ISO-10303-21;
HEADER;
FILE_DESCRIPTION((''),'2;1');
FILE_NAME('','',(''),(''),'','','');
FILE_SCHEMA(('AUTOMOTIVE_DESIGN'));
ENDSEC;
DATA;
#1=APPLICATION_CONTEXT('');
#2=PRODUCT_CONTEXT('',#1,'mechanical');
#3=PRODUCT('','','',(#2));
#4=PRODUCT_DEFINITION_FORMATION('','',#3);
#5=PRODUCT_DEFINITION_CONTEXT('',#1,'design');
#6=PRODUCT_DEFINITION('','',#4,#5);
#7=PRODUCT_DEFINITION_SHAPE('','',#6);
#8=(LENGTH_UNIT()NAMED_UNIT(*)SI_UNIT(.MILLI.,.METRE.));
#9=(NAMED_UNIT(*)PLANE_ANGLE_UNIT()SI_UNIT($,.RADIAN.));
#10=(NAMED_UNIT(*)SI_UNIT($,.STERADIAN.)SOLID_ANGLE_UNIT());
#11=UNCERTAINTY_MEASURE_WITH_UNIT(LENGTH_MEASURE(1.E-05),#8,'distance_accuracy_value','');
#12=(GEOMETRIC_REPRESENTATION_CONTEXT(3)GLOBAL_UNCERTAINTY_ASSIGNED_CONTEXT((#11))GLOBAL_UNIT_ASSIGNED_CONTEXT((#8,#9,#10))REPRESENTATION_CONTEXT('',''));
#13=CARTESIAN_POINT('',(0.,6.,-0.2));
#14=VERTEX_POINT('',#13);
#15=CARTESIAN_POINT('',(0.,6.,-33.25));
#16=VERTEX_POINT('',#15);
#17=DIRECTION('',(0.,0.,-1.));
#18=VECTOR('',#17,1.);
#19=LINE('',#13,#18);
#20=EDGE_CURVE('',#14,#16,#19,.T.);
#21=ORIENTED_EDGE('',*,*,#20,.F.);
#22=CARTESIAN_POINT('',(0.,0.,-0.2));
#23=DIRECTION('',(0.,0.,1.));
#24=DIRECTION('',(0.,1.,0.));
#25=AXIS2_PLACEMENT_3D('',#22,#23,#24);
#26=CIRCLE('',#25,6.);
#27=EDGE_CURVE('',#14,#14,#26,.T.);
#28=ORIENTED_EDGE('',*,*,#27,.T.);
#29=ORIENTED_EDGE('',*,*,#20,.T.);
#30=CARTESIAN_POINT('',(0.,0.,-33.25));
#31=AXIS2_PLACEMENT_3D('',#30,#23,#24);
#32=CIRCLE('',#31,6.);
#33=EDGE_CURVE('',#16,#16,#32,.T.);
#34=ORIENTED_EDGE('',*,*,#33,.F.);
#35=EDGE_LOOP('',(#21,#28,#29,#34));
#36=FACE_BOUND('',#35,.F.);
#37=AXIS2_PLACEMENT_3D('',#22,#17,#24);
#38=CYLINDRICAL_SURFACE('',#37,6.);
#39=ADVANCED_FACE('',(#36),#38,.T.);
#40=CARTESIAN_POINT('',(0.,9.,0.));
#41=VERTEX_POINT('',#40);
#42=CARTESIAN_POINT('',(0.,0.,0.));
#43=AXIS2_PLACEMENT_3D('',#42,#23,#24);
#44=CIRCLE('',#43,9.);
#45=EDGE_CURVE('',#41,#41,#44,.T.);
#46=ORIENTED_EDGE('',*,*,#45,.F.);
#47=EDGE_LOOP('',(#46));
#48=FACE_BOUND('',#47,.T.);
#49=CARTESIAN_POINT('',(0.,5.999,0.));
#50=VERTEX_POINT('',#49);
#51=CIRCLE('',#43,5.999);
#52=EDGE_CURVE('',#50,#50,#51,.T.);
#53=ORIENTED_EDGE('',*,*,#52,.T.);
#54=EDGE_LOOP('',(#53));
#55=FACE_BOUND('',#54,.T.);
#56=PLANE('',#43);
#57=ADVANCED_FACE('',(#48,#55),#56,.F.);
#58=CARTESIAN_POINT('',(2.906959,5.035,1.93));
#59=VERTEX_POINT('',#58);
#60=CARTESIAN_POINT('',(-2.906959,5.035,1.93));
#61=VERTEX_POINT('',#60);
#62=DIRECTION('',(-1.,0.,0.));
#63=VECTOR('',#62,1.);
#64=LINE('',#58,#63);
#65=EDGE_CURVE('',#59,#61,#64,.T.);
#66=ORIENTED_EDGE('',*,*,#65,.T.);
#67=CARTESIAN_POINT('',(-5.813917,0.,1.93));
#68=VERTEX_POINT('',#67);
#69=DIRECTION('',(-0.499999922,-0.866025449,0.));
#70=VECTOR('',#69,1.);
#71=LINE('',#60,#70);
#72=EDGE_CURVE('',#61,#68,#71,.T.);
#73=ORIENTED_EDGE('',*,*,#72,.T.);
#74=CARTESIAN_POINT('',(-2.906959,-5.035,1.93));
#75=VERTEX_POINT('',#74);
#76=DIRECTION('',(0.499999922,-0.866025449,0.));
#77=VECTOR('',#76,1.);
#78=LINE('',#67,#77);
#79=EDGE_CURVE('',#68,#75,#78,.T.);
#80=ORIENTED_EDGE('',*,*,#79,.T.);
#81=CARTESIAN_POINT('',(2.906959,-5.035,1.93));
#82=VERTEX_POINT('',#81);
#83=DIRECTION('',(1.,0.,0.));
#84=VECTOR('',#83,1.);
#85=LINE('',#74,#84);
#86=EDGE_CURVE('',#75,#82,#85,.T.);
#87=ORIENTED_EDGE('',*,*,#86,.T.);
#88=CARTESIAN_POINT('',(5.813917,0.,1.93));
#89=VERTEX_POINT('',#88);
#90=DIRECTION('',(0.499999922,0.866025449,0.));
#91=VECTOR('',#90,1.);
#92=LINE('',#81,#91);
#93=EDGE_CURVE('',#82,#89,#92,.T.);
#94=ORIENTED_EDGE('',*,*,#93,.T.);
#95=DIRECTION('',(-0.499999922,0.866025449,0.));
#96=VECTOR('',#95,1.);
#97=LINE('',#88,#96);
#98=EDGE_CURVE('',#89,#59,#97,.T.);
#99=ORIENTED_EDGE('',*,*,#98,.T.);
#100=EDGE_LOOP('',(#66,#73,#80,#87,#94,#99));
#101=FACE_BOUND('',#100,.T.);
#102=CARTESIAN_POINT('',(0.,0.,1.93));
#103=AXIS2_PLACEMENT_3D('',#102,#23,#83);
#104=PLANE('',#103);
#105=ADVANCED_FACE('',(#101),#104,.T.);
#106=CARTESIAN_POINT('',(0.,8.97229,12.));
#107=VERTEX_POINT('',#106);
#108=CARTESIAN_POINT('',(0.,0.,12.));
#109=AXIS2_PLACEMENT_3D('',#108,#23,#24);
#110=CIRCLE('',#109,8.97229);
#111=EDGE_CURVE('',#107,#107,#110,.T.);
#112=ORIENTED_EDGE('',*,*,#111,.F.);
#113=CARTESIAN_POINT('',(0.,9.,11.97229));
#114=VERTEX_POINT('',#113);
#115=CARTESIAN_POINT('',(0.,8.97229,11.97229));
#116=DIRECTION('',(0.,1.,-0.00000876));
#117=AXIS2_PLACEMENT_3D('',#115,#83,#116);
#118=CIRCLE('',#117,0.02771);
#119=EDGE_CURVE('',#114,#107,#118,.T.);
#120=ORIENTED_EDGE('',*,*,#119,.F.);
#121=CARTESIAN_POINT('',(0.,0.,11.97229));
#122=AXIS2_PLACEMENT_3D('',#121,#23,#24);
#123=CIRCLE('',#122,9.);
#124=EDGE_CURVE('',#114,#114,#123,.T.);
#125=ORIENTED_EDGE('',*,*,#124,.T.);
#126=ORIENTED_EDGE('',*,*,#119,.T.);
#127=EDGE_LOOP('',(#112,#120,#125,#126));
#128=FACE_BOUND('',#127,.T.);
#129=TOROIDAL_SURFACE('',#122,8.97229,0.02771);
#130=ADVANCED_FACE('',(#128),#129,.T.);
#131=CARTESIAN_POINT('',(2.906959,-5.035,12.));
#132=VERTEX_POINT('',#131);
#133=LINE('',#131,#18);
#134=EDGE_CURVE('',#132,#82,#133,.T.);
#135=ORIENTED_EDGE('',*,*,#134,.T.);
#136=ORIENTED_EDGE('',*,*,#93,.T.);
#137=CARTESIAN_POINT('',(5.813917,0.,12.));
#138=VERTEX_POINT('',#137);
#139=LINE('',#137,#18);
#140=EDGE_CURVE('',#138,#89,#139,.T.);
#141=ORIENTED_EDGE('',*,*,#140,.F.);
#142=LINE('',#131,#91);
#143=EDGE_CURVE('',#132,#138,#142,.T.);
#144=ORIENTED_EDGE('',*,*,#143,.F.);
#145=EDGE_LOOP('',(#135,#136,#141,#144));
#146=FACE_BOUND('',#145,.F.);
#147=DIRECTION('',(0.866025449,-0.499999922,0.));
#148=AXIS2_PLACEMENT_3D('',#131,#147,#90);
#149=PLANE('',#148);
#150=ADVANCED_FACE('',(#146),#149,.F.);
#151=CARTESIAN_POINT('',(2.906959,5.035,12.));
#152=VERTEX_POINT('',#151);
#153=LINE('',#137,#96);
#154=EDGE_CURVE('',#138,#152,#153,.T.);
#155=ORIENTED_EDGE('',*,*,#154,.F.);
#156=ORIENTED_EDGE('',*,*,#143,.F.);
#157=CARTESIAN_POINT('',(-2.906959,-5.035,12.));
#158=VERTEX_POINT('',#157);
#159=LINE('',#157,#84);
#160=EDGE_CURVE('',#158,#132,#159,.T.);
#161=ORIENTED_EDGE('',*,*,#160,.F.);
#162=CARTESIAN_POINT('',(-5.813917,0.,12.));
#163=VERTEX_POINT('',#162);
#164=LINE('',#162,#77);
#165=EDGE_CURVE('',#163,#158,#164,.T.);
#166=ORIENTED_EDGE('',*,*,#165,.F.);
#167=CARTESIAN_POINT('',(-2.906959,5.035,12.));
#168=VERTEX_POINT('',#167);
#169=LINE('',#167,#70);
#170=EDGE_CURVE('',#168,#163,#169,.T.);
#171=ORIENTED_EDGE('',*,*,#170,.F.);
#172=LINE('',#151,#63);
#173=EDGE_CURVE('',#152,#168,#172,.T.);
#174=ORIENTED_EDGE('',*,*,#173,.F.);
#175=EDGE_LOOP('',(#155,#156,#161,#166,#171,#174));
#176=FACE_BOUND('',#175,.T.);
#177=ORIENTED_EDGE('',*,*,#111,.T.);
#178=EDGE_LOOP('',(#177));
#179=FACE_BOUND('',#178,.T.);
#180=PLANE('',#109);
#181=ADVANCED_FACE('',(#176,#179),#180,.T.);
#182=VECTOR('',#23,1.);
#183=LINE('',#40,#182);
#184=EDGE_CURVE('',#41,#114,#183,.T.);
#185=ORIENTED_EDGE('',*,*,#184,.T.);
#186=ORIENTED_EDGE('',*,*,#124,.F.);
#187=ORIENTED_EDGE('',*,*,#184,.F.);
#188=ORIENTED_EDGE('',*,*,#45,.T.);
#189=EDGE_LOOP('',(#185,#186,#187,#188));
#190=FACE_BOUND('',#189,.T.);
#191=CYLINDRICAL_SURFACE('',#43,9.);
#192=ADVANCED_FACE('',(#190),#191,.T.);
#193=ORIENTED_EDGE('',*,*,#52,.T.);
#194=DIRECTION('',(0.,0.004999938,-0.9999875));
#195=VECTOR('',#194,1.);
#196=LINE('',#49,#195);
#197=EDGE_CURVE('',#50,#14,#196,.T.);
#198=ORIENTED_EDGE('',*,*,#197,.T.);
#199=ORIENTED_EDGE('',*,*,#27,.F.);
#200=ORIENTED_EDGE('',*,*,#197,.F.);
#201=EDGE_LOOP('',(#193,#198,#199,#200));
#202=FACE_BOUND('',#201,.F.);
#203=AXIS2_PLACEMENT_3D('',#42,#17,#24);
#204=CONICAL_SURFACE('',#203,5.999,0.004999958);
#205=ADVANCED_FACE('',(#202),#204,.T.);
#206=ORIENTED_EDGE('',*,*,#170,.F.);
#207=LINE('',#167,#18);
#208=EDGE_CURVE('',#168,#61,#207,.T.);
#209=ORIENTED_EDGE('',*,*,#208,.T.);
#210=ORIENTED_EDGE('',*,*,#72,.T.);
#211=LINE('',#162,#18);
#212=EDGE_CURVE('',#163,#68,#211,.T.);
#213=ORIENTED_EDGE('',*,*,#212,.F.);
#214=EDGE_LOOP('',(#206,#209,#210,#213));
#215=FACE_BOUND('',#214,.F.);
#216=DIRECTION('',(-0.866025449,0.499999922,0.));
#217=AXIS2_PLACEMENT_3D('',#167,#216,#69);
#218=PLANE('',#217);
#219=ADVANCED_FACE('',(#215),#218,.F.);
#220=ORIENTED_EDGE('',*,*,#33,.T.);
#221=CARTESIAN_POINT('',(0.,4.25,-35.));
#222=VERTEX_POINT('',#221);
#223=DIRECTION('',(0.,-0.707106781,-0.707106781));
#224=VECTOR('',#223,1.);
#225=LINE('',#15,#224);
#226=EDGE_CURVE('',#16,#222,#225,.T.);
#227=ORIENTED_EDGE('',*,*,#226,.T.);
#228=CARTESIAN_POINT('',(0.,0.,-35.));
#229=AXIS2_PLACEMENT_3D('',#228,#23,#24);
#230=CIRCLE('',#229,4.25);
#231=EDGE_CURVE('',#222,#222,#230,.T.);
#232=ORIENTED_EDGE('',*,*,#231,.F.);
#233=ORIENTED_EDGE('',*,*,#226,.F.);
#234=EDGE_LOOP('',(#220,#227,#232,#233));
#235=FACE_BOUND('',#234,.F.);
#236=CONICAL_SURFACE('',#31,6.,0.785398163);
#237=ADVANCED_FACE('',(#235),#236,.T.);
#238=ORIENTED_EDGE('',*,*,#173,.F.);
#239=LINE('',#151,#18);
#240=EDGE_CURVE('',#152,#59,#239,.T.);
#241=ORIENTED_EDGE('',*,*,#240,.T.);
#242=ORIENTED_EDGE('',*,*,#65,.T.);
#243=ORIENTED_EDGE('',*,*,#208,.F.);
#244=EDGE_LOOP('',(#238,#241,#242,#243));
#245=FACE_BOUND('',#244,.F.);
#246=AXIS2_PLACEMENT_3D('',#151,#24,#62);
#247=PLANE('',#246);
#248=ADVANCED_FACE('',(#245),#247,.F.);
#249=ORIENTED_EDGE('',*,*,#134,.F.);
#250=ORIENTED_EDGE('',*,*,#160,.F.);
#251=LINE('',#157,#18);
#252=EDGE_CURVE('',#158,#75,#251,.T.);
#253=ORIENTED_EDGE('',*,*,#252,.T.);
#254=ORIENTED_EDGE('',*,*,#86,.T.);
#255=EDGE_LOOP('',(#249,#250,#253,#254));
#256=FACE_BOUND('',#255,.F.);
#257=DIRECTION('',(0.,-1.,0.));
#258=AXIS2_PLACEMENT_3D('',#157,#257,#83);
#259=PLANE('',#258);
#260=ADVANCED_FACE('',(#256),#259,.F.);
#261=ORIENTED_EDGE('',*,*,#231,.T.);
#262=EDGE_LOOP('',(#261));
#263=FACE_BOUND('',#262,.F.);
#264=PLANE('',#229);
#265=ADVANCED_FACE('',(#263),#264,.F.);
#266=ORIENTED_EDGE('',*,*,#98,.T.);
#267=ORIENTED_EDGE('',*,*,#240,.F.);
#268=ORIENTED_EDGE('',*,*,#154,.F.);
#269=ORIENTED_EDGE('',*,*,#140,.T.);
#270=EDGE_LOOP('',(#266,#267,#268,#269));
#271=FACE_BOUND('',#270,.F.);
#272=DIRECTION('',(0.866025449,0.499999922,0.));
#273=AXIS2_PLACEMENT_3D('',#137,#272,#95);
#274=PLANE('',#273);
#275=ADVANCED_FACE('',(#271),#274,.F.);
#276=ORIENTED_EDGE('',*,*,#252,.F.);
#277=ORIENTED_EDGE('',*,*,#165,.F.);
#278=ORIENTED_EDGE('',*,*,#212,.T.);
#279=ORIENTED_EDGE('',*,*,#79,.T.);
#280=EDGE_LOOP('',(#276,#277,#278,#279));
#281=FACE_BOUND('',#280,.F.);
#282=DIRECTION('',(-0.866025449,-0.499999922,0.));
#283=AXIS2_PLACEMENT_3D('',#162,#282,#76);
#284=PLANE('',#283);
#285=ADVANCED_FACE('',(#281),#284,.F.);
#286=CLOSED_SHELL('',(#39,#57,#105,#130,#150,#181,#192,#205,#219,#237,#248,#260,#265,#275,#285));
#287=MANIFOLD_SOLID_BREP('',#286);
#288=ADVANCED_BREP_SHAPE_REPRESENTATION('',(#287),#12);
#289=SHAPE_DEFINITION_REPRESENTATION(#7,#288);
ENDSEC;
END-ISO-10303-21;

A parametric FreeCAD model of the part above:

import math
import FreeCAD as App
import Part
import Sketcher

V = App.Vector
Q = App.Units.Quantity


def add_polygon(sketch, points):
    """Adds a closed chain of lines whose ends are joined by coincident constraints."""
    first, n = sketch.GeometryCount, len(points)
    for a, b in zip(points, points[1:] + points[:1]):
        sketch.addGeometry(Part.LineSegment(App.Vector(*a, 0), App.Vector(*b, 0)), False)
    for i in range(n):
        sketch.addConstraint(Sketcher.Constraint("Coincident", first + i, 2, first + (i + 1) % n, 1))

doc = App.newDocument("Part")
body = doc.addObject("PartDesign::Body", "Body")

sketch1 = body.newObject("Sketcher::SketchObject", "Sketch")
sketch1.AttachmentSupport = (doc.getObject("YZ_Plane"), [""])
sketch1.MapMode = "FlatFace"
sketch1.addGeometry([
    Part.LineSegment(V(5.999, 0, 0), V(9, 0, 0)),
    Part.LineSegment(V(9, 0, 0), V(9, 11.972, 0)),
    Part.ArcOfCircle(Part.Circle(V(8.972, 11.972, 0), V(0, 0, 1), 0.028), math.radians(0), math.radians(90)),
    Part.LineSegment(V(8.972, 12, 0), V(0, 12, 0)),
    Part.LineSegment(V(0, 12, 0), V(0, -35, 0)),
    Part.LineSegment(V(0, -35, 0), V(4.25, -35, 0)),
    Part.LineSegment(V(4.25, -35, 0), V(6, -33.25, 0)),
    Part.LineSegment(V(6, -33.25, 0), V(6, -0.2, 0)),
    Part.LineSegment(V(6, -0.2, 0), V(5.999, 0, 0)),
], False)
sketch1.addConstraint([
    Sketcher.Constraint("Coincident", 0, 2, 1, 1),
    Sketcher.Constraint("Coincident", 1, 2, 2, 1),
    Sketcher.Constraint("Coincident", 2, 2, 3, 1),
    Sketcher.Constraint("Coincident", 3, 2, 4, 1),
    Sketcher.Constraint("Coincident", 4, 2, 5, 1),
    Sketcher.Constraint("Coincident", 5, 2, 6, 1),
    Sketcher.Constraint("Coincident", 6, 2, 7, 1),
    Sketcher.Constraint("Coincident", 7, 2, 8, 1),
    Sketcher.Constraint("Coincident", 8, 2, 0, 1),
    Sketcher.Constraint("Horizontal", 0),
    Sketcher.Constraint("Vertical", 1),
    Sketcher.Constraint("Horizontal", 3),
    Sketcher.Constraint("Vertical", 4),
    Sketcher.Constraint("Horizontal", 5),
    Sketcher.Constraint("Vertical", 7),
    Sketcher.Constraint("PointOnObject", 0, 2, -1),
    Sketcher.Constraint("PointOnObject", 3, 2, -2),
    Sketcher.Constraint("Horizontal", 2, 3, 1, 2),
    Sketcher.Constraint("DistanceY", 4, 2, 4, 1, Q("47 mm")),
    Sketcher.Constraint("Angle", 6, Q("45 deg")),
    Sketcher.Constraint("DistanceX", -1, 1, 0, 2, Q("9 mm")),
    Sketcher.Constraint("DistanceY", -1, 1, 2, 2, Q("12 mm")),
    Sketcher.Constraint("DistanceX", -1, 1, 6, 2, Q("6 mm")),
    Sketcher.Constraint("DistanceX", 5, 1, 5, 2, Q("4.25 mm")),
    Sketcher.Constraint("DistanceY", 7, 1, 7, 2, Q("33.05 mm")),
    Sketcher.Constraint("DistanceX", 0, 1, 0, 2, Q("3.001 mm")),
    Sketcher.Constraint("Radius", 2, Q("0.02771 mm")),
    Sketcher.Constraint("DistanceX", 3, 2, 3, 1, Q("8.97229 mm")),
])
revolution = body.newObject("PartDesign::Revolution", "Revolution")
revolution.Profile = sketch1
revolution.ReferenceAxis = (sketch1, ["V_Axis"])
revolution.Angle = 360

sketch2 = body.newObject("Sketcher::SketchObject", "Sketch001")
sketch2.AttachmentSupport = (doc.getObject("XY_Plane"), [""])
sketch2.MapMode = "FlatFace"
sketch2.AttachmentOffset = App.Placement(V(0, 0, 12), App.Rotation())
add_polygon(sketch2, [(6, 0), (3, 5), (-3, 5), (-6, 0), (-3, -5), (3, -5)])
sketch2.addConstraint([
    Sketcher.Constraint("Horizontal", 1),
    Sketcher.Constraint("Horizontal", 4),
    Sketcher.Constraint("Symmetric", 0, 2, 3, 2, -1, 1),
    Sketcher.Constraint("Symmetric", 2, 2, 5, 2, -1, 1),
    Sketcher.Constraint("PointOnObject", 2, 2, -1),
    Sketcher.Constraint("Parallel", 2, 5),
    Sketcher.Constraint("Vertical", 1, 2, 3, 2),
    Sketcher.Constraint("Angle", 0, Q("119.999995 deg")),
    Sketcher.Constraint("DistanceY", 3, 2, 1, 2, Q("10.07 mm")),
    Sketcher.Constraint("DistanceX", 1, 2, 1, 1, Q("5.813918 mm")),
])
pocket1 = body.newObject("PartDesign::Pocket", "Pocket")
pocket1.Profile = sketch2
pocket1.Length = 10.07

doc.recompute()
